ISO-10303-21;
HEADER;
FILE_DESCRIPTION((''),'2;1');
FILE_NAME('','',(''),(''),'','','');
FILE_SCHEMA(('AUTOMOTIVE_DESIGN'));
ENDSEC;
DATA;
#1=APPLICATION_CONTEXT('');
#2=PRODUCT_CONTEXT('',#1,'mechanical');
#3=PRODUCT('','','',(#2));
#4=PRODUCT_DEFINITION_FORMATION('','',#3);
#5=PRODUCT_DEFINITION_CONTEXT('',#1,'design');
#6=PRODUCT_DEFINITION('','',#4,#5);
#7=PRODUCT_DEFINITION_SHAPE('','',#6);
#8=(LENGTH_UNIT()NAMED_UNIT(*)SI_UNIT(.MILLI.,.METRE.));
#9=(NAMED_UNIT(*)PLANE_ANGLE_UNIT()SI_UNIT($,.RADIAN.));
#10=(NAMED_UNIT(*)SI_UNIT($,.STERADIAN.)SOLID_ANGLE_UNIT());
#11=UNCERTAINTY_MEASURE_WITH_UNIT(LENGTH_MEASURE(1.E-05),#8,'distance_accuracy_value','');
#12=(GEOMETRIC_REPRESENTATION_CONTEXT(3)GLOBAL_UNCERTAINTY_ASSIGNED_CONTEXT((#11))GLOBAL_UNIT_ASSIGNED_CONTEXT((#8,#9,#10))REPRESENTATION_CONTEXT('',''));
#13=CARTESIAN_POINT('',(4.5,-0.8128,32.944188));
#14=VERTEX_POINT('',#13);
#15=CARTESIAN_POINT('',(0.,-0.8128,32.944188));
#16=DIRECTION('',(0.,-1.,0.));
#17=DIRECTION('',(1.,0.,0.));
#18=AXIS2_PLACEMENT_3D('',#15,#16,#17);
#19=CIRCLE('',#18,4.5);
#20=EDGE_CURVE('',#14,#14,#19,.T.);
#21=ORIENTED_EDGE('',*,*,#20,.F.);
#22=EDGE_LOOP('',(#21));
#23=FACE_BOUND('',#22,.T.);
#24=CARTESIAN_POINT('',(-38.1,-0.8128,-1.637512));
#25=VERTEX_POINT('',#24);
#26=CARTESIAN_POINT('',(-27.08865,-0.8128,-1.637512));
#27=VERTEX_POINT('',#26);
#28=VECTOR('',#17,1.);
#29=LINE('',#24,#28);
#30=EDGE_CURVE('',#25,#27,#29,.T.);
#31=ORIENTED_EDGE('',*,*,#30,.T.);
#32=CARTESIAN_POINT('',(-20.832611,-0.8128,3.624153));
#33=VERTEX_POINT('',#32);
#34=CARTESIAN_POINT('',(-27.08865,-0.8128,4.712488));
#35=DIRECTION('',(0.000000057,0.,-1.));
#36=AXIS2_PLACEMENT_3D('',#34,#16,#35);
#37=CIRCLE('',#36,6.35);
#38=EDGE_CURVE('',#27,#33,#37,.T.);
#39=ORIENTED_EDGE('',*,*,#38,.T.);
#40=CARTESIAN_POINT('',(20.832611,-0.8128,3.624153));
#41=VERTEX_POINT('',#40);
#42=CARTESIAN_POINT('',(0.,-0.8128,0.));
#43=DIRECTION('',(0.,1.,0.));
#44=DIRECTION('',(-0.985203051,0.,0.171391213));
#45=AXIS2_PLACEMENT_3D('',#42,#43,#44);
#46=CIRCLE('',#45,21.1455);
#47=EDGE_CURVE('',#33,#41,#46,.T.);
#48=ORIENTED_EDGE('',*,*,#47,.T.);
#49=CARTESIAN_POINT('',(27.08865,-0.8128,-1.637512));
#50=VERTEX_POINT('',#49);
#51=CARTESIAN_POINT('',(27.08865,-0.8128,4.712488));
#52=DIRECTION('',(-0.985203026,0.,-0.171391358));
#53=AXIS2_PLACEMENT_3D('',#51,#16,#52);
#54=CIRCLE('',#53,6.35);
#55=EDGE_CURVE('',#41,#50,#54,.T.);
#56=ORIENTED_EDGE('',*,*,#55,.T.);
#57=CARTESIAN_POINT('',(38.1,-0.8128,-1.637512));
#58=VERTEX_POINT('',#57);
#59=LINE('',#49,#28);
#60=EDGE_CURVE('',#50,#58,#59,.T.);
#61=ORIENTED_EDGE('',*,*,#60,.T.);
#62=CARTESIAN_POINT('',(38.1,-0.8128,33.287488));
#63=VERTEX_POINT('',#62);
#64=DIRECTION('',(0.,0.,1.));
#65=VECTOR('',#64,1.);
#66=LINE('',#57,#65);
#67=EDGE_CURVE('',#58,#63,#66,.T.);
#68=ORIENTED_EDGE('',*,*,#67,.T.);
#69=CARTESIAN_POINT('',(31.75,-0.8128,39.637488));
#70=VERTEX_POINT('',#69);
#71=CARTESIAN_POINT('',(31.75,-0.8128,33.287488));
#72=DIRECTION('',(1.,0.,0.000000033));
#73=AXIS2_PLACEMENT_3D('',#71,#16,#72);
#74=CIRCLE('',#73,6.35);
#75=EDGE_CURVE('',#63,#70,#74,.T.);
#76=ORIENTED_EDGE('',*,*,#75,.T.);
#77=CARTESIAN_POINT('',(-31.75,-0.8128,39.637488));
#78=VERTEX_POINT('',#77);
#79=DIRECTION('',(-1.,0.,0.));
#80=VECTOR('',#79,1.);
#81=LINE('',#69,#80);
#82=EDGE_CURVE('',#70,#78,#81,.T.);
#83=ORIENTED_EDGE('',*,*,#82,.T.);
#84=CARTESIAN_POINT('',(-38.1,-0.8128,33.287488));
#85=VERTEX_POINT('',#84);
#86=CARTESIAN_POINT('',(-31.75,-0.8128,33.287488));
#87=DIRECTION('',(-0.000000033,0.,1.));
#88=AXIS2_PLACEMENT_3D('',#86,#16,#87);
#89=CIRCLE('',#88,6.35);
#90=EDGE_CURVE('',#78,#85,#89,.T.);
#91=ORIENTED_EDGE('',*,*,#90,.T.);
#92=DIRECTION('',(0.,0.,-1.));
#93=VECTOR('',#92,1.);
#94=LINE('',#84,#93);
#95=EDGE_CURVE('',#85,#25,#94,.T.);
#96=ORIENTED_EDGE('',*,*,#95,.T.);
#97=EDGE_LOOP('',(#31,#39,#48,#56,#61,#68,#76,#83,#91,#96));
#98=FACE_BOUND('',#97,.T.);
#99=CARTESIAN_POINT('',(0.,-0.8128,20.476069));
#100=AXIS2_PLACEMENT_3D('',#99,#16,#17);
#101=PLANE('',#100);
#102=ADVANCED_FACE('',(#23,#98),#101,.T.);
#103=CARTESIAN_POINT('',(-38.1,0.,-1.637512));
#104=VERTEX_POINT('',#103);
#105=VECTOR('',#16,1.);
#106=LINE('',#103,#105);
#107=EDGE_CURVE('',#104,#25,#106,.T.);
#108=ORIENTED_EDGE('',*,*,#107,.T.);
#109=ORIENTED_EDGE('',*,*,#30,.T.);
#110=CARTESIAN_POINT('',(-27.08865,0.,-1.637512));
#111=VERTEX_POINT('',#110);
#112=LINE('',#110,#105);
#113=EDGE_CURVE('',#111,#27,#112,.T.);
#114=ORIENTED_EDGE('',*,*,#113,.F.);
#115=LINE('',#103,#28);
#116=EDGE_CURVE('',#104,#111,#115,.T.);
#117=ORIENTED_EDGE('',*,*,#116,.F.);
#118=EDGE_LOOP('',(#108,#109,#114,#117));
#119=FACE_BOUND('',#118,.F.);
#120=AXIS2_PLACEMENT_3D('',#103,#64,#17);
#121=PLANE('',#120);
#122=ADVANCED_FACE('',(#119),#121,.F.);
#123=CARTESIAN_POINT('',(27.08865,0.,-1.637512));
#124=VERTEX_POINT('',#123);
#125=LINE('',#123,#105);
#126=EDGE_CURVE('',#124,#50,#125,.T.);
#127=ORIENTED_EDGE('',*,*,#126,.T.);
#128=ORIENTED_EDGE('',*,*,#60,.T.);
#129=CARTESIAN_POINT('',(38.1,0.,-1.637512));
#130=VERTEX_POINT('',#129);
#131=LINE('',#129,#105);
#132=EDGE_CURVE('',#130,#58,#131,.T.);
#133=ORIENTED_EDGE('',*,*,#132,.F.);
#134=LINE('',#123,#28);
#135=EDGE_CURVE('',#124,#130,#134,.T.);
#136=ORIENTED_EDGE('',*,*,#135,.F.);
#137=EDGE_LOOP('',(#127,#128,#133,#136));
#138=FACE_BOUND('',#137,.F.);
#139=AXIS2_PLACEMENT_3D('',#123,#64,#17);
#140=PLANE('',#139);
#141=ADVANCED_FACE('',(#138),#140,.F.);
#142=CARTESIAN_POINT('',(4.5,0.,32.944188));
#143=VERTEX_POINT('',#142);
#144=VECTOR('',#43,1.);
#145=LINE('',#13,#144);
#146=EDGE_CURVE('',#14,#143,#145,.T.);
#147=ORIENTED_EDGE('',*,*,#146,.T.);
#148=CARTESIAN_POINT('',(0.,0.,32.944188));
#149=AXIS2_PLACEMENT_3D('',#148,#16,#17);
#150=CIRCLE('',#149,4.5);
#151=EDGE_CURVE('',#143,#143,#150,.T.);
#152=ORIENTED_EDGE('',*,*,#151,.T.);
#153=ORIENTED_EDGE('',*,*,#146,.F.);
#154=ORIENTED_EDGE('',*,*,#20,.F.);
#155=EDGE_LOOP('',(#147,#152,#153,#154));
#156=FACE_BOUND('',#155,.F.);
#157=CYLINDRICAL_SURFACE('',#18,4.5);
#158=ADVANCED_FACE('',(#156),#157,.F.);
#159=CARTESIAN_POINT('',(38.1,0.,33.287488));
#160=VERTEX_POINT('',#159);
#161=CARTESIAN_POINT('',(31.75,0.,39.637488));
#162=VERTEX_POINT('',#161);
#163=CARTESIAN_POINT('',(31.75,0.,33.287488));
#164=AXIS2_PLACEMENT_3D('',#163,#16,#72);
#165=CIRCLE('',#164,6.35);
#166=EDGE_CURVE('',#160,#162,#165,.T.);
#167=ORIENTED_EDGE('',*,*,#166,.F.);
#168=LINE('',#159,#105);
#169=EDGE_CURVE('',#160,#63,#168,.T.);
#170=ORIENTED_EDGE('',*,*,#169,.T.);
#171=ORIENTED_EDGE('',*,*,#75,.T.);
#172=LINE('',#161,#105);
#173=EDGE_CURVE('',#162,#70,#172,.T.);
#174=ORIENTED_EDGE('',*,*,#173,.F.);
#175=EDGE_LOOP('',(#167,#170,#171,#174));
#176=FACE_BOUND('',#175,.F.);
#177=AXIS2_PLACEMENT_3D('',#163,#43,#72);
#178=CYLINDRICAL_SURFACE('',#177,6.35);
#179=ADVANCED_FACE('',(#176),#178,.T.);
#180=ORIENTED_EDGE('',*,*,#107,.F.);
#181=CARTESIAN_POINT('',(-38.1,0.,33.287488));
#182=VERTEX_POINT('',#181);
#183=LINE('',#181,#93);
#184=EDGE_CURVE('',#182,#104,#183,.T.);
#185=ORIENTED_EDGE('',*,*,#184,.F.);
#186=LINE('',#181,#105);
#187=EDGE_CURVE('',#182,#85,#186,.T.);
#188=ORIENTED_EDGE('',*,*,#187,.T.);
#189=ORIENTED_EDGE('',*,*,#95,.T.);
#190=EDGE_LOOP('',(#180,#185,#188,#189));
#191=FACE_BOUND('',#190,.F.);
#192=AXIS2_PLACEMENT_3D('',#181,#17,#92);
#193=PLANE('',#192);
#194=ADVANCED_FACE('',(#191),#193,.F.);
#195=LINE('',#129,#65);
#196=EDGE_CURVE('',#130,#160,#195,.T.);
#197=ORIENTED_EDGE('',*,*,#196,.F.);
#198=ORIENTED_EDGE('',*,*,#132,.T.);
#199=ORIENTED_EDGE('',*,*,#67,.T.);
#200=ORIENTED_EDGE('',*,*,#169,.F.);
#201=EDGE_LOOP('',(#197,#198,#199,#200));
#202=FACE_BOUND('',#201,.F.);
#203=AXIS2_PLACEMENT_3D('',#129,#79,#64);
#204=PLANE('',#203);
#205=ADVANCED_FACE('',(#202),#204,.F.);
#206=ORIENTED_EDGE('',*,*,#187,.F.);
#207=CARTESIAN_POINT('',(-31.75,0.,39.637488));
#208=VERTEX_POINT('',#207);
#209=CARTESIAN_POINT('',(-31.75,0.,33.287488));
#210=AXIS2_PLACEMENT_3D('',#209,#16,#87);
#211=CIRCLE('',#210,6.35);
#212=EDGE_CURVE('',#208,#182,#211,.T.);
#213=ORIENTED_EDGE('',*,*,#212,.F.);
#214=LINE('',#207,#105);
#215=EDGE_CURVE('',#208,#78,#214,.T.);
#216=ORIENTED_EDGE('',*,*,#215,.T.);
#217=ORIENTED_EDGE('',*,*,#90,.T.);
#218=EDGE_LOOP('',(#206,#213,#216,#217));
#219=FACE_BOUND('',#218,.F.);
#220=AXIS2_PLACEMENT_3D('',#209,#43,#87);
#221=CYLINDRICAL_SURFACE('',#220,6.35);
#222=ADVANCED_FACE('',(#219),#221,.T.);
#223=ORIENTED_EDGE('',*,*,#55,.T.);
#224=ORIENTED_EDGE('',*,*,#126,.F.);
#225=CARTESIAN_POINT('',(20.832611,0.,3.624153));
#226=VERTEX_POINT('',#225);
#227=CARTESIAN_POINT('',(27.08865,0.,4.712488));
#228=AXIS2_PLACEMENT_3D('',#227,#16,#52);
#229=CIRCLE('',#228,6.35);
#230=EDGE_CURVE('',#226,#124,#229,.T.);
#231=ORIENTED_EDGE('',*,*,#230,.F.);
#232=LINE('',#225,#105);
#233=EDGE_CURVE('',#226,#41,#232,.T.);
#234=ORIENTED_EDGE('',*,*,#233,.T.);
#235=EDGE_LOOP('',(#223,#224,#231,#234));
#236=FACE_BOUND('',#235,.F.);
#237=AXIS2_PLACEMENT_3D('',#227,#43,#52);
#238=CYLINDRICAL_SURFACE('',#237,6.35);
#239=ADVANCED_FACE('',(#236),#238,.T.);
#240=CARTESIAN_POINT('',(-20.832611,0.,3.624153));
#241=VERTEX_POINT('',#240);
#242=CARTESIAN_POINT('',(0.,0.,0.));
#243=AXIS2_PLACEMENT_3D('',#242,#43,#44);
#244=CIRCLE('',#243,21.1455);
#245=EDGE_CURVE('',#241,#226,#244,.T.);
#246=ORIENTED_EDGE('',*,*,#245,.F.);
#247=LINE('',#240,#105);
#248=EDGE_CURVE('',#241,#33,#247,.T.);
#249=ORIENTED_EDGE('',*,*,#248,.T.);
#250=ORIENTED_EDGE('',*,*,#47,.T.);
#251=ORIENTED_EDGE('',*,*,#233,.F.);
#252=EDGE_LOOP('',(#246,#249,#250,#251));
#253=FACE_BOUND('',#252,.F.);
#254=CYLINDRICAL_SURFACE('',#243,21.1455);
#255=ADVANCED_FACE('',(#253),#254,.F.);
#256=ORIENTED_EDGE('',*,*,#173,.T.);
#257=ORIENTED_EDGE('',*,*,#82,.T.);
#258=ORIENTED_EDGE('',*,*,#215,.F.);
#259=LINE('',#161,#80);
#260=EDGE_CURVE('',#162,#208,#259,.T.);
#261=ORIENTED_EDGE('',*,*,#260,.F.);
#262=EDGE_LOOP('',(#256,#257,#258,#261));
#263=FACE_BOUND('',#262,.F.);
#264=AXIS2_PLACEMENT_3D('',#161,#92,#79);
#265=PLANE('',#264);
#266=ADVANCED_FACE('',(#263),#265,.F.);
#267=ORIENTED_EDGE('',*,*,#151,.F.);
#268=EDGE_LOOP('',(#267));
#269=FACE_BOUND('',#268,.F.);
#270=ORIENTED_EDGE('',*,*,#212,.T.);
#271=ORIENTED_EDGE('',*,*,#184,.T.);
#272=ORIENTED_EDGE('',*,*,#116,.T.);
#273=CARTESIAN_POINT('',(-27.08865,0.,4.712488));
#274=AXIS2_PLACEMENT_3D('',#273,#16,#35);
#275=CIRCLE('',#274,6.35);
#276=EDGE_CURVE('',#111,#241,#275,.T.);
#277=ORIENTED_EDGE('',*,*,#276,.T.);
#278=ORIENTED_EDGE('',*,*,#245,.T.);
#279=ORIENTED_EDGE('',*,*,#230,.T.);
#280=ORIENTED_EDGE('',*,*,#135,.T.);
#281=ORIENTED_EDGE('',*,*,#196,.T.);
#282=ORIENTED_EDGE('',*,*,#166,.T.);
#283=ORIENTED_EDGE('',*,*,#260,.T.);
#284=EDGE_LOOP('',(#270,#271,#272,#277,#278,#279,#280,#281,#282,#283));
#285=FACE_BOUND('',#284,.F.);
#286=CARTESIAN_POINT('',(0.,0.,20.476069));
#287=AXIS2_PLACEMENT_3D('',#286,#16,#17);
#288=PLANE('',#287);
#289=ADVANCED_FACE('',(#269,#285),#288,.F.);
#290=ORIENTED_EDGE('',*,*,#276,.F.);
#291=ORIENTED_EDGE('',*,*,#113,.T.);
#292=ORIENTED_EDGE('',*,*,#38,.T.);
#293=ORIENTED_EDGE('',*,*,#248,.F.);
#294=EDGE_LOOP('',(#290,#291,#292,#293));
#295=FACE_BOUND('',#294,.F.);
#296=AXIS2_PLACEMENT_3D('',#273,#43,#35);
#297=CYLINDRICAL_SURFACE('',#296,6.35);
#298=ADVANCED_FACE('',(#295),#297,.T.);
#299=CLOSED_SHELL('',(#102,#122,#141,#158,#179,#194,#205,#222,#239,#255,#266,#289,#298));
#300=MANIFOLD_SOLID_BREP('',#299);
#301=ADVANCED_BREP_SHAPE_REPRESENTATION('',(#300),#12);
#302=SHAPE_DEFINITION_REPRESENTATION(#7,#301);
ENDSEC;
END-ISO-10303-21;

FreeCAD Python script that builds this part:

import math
import FreeCAD as App
import Part
import Sketcher
Q = App.Units.Quantity

doc = App.newDocument("Part")
params = doc.addObject("Spreadsheet::Sheet", "Params")
for row, (alias, value) in enumerate([
    ("sketch1_radius", "0.25 in"),
    ("sketch1_width", "2.5 in"),
    ("sketch1_height", "1.375 in"),
    ("pad1_length", "0.032 in"),
    ("pocket1_length", "1 in"),
], start=1):
    params.set(f"A{row}", alias)
    params.set(f"B{row}", "=" + value)
    params.setAlias(f"B{row}", alias)

body = doc.addObject("PartDesign::Body", "Body")

sketch1 = doc.addObject("Sketcher::SketchObject", "Sketch")
body.addObject(sketch1)
sketch1.AttachmentSupport = (doc.XZ_Plane, [""])
sketch1.MapMode = "FlatFace"
sketch1.addGeometry([
    Part.ArcOfCircle(Part.Circle(App.Vector(0, 0, 0), App.Vector(0, 0, 1), 21), math.radians(10), math.radians(170)),
    Part.ArcOfCircle(Part.Circle(App.Vector(27, 5, 0), App.Vector(0, 0, 1), 6), math.radians(-170), math.radians(-90)),
    Part.LineSegment(App.Vector(27, -2, 0), App.Vector(38, -2, 0)),
    Part.LineSegment(App.Vector(38, -2, 0), App.Vector(38, 33, 0)),
    Part.ArcOfCircle(Part.Circle(App.Vector(32, 33, 0), App.Vector(0, 0, 1), 6), math.radians(0), math.radians(90)),
    Part.LineSegment(App.Vector(32, 40, 0), App.Vector(-32, 40, 0)),
    Part.ArcOfCircle(Part.Circle(App.Vector(-32, 33, 0), App.Vector(0, 0, 1), 6), math.radians(90), math.radians(180)),
    Part.LineSegment(App.Vector(-38, 33, 0), App.Vector(-38, -2, 0)),
    Part.LineSegment(App.Vector(-38, -2, 0), App.Vector(-27, -2, 0)),
    Part.ArcOfCircle(Part.Circle(App.Vector(-27, 5, 0), App.Vector(0, 0, 1), 6), math.radians(-90), math.radians(-10)),
], False)
sketch1.addConstraint([
    Sketcher.Constraint("Tangent", 0, 1, 1, 1),
    Sketcher.Constraint("Tangent", 1, 2, 2, 1),
    Sketcher.Constraint("Coincident", 2, 2, 3, 1),
    Sketcher.Constraint("Tangent", 3, 2, 4, 1),
    Sketcher.Constraint("Tangent", 4, 2, 5, 1),
    Sketcher.Constraint("Tangent", 5, 2, 6, 1),
    Sketcher.Constraint("Tangent", 6, 2, 7, 1),
    Sketcher.Constraint("Coincident", 7, 2, 8, 1),
    Sketcher.Constraint("Tangent", 8, 2, 9, 1),
    Sketcher.Constraint("Tangent", 9, 2, 0, 2),
    Sketcher.Constraint("Horizontal", 2),
    Sketcher.Constraint("Vertical", 3),
    Sketcher.Constraint("Horizontal", 5),
    Sketcher.Constraint("Vertical", 7),
    Sketcher.Constraint("Horizontal", 8),
    Sketcher.Constraint("Coincident", 0, 3, -1, 1),
    Sketcher.Constraint("Equal", 1, 4),
    Sketcher.Constraint("Equal", 4, 6),
    Sketcher.Constraint("Equal", 6, 9),
    Sketcher.Constraint("Symmetric", 2, 2, 7, 2, -2),
    Sketcher.Constraint("Radius", 1, Q("0.25 in")),
    Sketcher.Constraint("DistanceX", 5, 2, 5, 1, Q("2.5 in")),
    Sketcher.Constraint("Radius", 0, Q("0.8325 in")),
    Sketcher.Constraint("DistanceY", 3, 1, 3, 2, Q("1.375 in")),
    Sketcher.Constraint("DistanceX", 2, 1, 2, 2, Q("11.01135 mm")),
])
sketch1.setExpression("Constraints[20]", "Params.sketch1_radius")
sketch1.setExpression("Constraints[21]", "Params.sketch1_width")
sketch1.setExpression("Constraints[23]", "Params.sketch1_height")
pad1 = doc.addObject("PartDesign::Pad", "Pad")
body.addObject(pad1)
pad1.Profile = sketch1
pad1.setExpression("Length", "Params.pad1_length")

sketch2 = doc.addObject("Sketcher::SketchObject", "Sketch001")
body.addObject(sketch2)
sketch2.AttachmentSupport = (doc.XZ_Plane, [""])
sketch2.MapMode = "FlatFace"
sketch2.AttachmentOffset = App.Placement(App.Vector(0, 0, 0.032 * 25.4), App.Rotation())
sketch2.addGeometry(Part.Circle(App.Vector(0, 32.9, 0), App.Vector(0, 0, 1), 4.5), False)
sketch2.addConstraint([
    Sketcher.Constraint("PointOnObject", 0, 3, -2),
    Sketcher.Constraint("Diameter", 0, Q("9 mm")),
    Sketcher.Constraint("DistanceY", -1, 1, 0, 3, Q("32.944188 mm")),
])
pocket1 = doc.addObject("PartDesign::Pocket", "Pocket")
body.addObject(pocket1)
pocket1.Profile = sketch2
pocket1.setExpression("Length", "Params.pocket1_length")

doc.recompute()
